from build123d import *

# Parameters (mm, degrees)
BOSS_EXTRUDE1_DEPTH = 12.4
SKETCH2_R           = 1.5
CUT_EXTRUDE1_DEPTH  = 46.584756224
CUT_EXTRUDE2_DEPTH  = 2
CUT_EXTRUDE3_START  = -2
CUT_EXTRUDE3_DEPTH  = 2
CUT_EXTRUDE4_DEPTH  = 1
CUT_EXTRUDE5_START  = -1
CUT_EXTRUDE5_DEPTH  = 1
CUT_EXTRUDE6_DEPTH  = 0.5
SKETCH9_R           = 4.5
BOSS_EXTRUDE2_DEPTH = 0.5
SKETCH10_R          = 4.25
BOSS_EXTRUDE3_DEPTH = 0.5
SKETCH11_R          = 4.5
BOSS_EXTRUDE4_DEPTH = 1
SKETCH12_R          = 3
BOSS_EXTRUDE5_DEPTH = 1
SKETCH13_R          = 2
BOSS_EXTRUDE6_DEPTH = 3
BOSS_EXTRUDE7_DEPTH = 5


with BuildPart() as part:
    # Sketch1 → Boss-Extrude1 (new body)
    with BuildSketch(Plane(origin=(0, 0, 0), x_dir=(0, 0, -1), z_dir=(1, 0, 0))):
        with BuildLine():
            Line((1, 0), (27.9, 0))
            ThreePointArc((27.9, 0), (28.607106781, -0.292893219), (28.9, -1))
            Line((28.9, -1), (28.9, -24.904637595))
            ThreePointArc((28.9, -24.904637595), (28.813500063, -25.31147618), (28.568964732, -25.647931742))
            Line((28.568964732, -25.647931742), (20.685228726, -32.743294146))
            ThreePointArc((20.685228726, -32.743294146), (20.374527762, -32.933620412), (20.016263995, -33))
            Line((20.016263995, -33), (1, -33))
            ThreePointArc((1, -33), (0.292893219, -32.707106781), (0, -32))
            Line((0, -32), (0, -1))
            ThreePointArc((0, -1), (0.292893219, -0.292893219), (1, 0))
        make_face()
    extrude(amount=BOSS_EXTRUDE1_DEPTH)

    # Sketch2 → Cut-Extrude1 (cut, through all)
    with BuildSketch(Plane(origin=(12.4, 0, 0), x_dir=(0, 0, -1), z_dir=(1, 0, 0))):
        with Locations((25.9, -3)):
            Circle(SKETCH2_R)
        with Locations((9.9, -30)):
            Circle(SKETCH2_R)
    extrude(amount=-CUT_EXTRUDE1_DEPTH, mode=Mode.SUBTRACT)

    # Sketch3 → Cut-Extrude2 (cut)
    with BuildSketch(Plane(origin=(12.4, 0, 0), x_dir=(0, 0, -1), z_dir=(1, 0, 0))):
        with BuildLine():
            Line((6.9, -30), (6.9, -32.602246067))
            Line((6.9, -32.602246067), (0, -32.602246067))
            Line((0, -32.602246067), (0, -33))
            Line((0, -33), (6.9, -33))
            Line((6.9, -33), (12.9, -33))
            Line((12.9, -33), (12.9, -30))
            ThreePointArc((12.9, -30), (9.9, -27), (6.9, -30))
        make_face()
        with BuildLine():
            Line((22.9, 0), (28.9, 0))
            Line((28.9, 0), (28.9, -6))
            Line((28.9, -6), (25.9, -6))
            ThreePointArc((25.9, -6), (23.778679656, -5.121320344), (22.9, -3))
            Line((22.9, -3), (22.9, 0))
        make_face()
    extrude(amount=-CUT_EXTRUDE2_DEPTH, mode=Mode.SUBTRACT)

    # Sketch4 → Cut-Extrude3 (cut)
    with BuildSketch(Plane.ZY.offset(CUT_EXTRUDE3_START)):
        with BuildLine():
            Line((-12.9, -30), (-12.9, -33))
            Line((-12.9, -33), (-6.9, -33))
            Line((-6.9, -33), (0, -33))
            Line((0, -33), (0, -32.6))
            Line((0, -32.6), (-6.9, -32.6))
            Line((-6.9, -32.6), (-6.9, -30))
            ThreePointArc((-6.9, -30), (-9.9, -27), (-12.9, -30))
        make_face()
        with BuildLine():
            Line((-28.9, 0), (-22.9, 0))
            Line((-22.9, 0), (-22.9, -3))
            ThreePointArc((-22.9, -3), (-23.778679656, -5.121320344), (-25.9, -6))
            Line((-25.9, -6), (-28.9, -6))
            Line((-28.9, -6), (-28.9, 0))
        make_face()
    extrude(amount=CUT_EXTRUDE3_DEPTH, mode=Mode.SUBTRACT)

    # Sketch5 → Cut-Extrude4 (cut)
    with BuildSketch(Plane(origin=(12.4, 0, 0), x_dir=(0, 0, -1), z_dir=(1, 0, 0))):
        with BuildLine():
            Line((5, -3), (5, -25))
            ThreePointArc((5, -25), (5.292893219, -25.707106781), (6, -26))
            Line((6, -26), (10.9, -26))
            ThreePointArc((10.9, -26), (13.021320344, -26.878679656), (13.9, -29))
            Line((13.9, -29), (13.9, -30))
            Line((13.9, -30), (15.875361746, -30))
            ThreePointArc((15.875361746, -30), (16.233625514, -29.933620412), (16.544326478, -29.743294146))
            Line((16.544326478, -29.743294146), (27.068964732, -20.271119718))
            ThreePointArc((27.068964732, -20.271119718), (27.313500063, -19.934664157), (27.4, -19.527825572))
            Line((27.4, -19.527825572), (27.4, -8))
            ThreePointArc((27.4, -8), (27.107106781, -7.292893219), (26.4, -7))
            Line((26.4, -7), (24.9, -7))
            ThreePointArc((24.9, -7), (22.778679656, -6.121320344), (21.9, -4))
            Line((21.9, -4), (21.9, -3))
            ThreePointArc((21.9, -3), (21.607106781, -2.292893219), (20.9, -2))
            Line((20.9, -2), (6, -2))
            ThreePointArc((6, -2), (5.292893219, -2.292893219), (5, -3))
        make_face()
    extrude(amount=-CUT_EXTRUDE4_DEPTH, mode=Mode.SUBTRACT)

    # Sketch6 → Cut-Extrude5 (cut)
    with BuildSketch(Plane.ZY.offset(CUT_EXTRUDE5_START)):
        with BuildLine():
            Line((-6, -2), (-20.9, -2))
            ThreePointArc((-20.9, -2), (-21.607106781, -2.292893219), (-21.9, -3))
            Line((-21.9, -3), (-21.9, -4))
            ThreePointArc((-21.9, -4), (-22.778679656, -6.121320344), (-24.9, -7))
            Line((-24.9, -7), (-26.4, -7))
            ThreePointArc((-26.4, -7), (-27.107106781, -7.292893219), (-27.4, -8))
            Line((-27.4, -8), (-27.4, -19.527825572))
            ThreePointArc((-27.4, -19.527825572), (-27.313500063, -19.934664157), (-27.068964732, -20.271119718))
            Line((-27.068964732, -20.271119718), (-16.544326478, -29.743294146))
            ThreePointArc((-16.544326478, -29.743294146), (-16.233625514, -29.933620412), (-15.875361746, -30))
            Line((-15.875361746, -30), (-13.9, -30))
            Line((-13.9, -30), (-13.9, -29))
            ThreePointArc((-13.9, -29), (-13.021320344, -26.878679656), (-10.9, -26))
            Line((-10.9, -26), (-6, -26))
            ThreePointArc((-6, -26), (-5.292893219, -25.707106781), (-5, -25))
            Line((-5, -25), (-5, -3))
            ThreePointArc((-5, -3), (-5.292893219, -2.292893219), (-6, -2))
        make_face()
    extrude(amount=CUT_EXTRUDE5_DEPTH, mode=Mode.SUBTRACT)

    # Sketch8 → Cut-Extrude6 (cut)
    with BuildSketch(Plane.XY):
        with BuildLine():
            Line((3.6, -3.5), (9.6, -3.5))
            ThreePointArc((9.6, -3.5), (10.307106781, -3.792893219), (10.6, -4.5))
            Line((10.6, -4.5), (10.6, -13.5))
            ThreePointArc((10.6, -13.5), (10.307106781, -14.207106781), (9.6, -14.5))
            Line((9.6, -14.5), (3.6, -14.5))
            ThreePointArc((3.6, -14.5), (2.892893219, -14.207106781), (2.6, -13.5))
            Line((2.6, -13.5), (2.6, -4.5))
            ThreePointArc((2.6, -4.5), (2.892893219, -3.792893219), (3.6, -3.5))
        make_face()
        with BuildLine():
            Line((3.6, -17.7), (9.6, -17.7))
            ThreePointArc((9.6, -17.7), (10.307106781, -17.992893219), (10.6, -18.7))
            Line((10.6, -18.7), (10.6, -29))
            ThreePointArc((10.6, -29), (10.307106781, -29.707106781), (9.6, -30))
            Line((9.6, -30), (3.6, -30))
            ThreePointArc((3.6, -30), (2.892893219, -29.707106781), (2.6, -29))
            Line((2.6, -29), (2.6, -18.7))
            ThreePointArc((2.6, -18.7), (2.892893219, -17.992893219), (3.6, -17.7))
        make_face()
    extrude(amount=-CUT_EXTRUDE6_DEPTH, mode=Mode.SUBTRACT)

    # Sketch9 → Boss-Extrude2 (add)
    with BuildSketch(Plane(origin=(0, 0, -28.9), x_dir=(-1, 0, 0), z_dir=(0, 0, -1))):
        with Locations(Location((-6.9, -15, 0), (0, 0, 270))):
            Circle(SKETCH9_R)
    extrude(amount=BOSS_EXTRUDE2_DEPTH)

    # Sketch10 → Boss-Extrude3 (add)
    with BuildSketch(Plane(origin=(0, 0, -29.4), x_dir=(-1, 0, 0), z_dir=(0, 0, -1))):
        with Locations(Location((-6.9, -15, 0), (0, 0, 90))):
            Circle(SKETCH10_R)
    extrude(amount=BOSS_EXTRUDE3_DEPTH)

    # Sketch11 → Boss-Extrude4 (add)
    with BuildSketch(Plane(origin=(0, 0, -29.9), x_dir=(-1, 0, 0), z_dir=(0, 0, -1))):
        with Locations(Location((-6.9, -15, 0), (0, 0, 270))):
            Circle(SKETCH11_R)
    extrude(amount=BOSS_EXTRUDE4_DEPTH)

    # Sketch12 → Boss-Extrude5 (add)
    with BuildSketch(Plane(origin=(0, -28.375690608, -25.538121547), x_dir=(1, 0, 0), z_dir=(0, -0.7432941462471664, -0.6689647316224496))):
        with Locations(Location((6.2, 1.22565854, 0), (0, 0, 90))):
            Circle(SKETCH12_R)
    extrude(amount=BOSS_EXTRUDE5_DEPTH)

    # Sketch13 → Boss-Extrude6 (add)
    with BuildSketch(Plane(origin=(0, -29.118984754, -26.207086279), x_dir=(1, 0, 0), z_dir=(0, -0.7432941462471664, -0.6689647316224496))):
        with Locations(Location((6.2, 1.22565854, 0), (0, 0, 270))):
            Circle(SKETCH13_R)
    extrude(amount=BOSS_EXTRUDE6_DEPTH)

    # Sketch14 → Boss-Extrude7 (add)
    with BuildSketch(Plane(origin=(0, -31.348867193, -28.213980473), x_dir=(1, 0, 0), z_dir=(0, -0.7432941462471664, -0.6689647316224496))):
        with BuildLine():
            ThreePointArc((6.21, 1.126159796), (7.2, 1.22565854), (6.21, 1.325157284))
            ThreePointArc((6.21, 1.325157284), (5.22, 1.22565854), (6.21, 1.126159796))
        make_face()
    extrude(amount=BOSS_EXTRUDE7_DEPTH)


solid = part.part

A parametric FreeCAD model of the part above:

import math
import FreeCAD as App
import Part
import Sketcher
from FreeCAD import Vector
Q = App.Units.Quantity

doc = App.newDocument("Part")
body = doc.addObject("PartDesign::Body", "Body")

# Sketch on YZ plane
sketch1 = body.newObject("Sketcher::SketchObject", "Sketch")
sketch1.AttachmentSupport = (doc.getObject("YZ_Plane"), [""])
sketch1.MapMode = "FlatFace"
sketch1.addGeometry([
    Part.LineSegment(Vector(0, -27.9, 0), Vector(0, -1, 0)),  # 0
    Part.ArcOfCircle(Part.Circle(Vector(-1, -1, 0), Vector(0, 0, 1), 1), math.radians(0), math.radians(90)),  # 1
    Part.LineSegment(Vector(-1, 0, 0), Vector(-32, 0, 0)),  # 2
    Part.ArcOfCircle(Part.Circle(Vector(-32, -1, 0), Vector(0, 0, 1), 1), math.radians(90), math.radians(180)),  # 3
    Part.LineSegment(Vector(-33, -1, 0), Vector(-33, -20, 0)),  # 4
    Part.ArcOfCircle(Part.Circle(Vector(-32, -20, 0), Vector(0, 0, 1), 1), math.radians(180), math.radians(222)),  # 5
    Part.LineSegment(Vector(-32.7, -20.7, 0), Vector(-25.6, -28.6, 0)),  # 6
    Part.ArcOfCircle(Part.Circle(Vector(-24.9, -27.9, 0), Vector(0, 0, 1), 1), math.radians(-138), math.radians(-90)),  # 7
    Part.LineSegment(Vector(-24.9, -28.9, 0), Vector(-1, -28.9, 0)),  # 8
    Part.ArcOfCircle(Part.Circle(Vector(-1, -27.9, 0), Vector(0, 0, 1), 1), math.radians(-90), math.radians(0)),  # 9
], False)
sketch1.addConstraint([
    Sketcher.Constraint("Tangent", 0, 2, 1, 1),
    Sketcher.Constraint("Tangent", 1, 2, 2, 1),
    Sketcher.Constraint("Tangent", 2, 2, 3, 1),
    Sketcher.Constraint("Tangent", 3, 2, 4, 1),
    Sketcher.Constraint("Tangent", 4, 2, 5, 1),
    Sketcher.Constraint("Tangent", 5, 2, 6, 1),
    Sketcher.Constraint("Tangent", 6, 2, 7, 1),
    Sketcher.Constraint("Tangent", 7, 2, 8, 1),
    Sketcher.Constraint("Tangent", 8, 2, 9, 1),
    Sketcher.Constraint("Tangent", 9, 2, 0, 1),
    Sketcher.Constraint("Vertical", 0),
    Sketcher.Constraint("Horizontal", 2),
    Sketcher.Constraint("Vertical", 4),
    Sketcher.Constraint("Horizontal", 8),
    Sketcher.Constraint("Equal", 1, 3),
    Sketcher.Constraint("Equal", 3, 5),
    Sketcher.Constraint("Equal", 5, 7),
    Sketcher.Constraint("Equal", 7, 9),
    Sketcher.Constraint("PointOnObject", 0, 2, -2),
    Sketcher.Constraint("PointOnObject", 1, 2, -1),
    Sketcher.Constraint("Radius", 1, Q("1 mm")),
    Sketcher.Constraint("DistanceX", 2, 2, 2, 1, Q("31 mm")),
    Sketcher.Constraint("DistanceY", 0, 1, 0, 2, Q("26.9 mm")),
    Sketcher.Constraint("DistanceY", 6, 2, 5, 3, Q("8.552701 mm")),
    Sketcher.Constraint("DistanceX", 8, 1, 8, 2, Q("23.904638 mm")),
])
pad1 = body.newObject("PartDesign::Pad", "Pad")
pad1.Profile = sketch1
pad1.Length = 12.4

# Sketch on YZ plane
sketch2 = body.newObject("Sketcher::SketchObject", "Sketch001")
sketch2.AttachmentSupport = (doc.getObject("YZ_Plane"), [""])
sketch2.MapMode = "FlatFace"
sketch2.AttachmentOffset = App.Placement(Vector(0, 0, 12.4), App.Rotation())
sketch2.addGeometry([
    Part.Circle(Vector(-3, -25.9, 0), Vector(0, 0, 1), 1.5),
    Part.Circle(Vector(-30, -9.9, 0), Vector(0, 0, 1), 1.5),
], False)
sketch2.addConstraint([
    Sketcher.Constraint("Equal", 0, 1),
    Sketcher.Constraint("Diameter", 0, Q("3 mm")),
    Sketcher.Constraint("DistanceX", 0, 3, -1, 1, Q("3 mm")),
    Sketcher.Constraint("DistanceX", 1, 3, -1, 1, Q("30 mm")),
    Sketcher.Constraint("DistanceY", 0, 3, 1, 3, Q("16 mm")),
    Sketcher.Constraint("DistanceY", 0, 3, -1, 1, Q("25.9 mm")),
])
pocket1 = body.newObject("PartDesign::Pocket", "Pocket")
pocket1.Profile = sketch2
pocket1.Type = "ThroughAll"

# Sketch on YZ plane
sketch3 = body.newObject("Sketcher::SketchObject", "Sketch002")
sketch3.AttachmentSupport = (doc.getObject("YZ_Plane"), [""])
sketch3.MapMode = "FlatFace"
sketch3.AttachmentOffset = App.Placement(Vector(0, 0, 12.4), App.Rotation())
sketch3.addGeometry([
    Part.LineSegment(Vector(-30, -6.9, 0), Vector(-32.6, -6.9, 0)),  # 0
    Part.LineSegment(Vector(-32.6, -6.9, 0), Vector(-32.6, 0, 0)),  # 1
    Part.LineSegment(Vector(-32.6, 0, 0), Vector(-33, 0, 0)),  # 2
    Part.LineSegment(Vector(-33, 0, 0), Vector(-33, -12.9, 0)),  # 3
    Part.LineSegment(Vector(-33, -12.9, 0), Vector(-30, -12.9, 0)),  # 4
    Part.ArcOfCircle(Part.Circle(Vector(-30, -9.9, 0), Vector(0, 0, 1), 3), math.radians(-90), math.radians(90)),  # 5
    Part.LineSegment(Vector(0, -28.9, 0), Vector(0, -22.9, 0)),  # 6
    Part.LineSegment(Vector(0, -22.9, 0), Vector(-3, -22.9, 0)),  # 7
    Part.ArcOfCircle(Part.Circle(Vector(-3, -25.9, 0), Vector(0, 0, 1), 3), math.radians(90), math.radians(180)),  # 8
    Part.LineSegment(Vector(-6, -25.9, 0), Vector(-6, -28.9, 0)),  # 9
    Part.LineSegment(Vector(-6, -28.9, 0), Vector(0, -28.9, 0)),  # 10
], False)
sketch3.addConstraint([
    Sketcher.Constraint("Coincident", 0, 2, 1, 1),
    Sketcher.Constraint("Coincident", 1, 2, 2, 1),
    Sketcher.Constraint("Coincident", 2, 2, 3, 1),
    Sketcher.Constraint("Coincident", 3, 2, 4, 1),
    Sketcher.Constraint("Tangent", 4, 2, 5, 1),
    Sketcher.Constraint("Tangent", 5, 2, 0, 1),
    Sketcher.Constraint("Coincident", 6, 2, 7, 1),
    Sketcher.Constraint("Tangent", 7, 2, 8, 1),
    Sketcher.Constraint("Tangent", 8, 2, 9, 1),
    Sketcher.Constraint("Coincident", 9, 2, 10, 1),
    Sketcher.Constraint("Coincident", 10, 2, 6, 1),
    Sketcher.Constraint("Horizontal", 0),
    Sketcher.Constraint("Vertical", 1),
    Sketcher.Constraint("Horizontal", 2),
    Sketcher.Constraint("Vertical", 3),
    Sketcher.Constraint("Horizontal", 4),
    Sketcher.Constraint("Vertical", 6),
    Sketcher.Constraint("Horizontal", 7),
    Sketcher.Constraint("Vertical", 9),
    Sketcher.Constraint("Horizontal", 10),
    Sketcher.Constraint("Equal", 5, 8),
    Sketcher.Constraint("PointOnObject", 1, 2, -1),
    Sketcher.Constraint("PointOnObject", 6, 2, -2),
    Sketcher.Constraint("Equal", 4, 7),
    Sketcher.Constraint("Equal", 10, 6),
    Sketcher.Constraint("Radius", 5, Q("3 mm")),
    Sketcher.Constraint("DistanceX", 4, 1, 4, 2, Q("3 mm")),
    Sketcher.Constraint("DistanceY", 1, 1, 1, 2, Q("6.9 mm")),
    Sketcher.Constraint("DistanceX", 5, 3, -1, 1, Q("30 mm")),
    Sketcher.Constraint("DistanceY", 8, 3, 5, 3, Q("16 mm")),
    Sketcher.Constraint("DistanceX", 0, 2, 0, 1, Q("2.602246 mm")),
])
pocket2 = body.newObject("PartDesign::Pocket", "Pocket001")
pocket2.Profile = sketch3
pocket2.Length = 2

# Sketch on YZ plane
sketch4 = body.newObject("Sketcher::SketchObject", "Sketch003")
sketch4.AttachmentSupport = (doc.getObject("YZ_Plane"), [""])
sketch4.MapMode = "FlatFace"
sketch4.AttachmentOffset = App.Placement(Vector(0, 0, 2), App.Rotation())
sketch4.addGeometry([
    Part.LineSegment(Vector(-30, -12.9, 0), Vector(-33, -12.9, 0)),  # 0
    Part.LineSegment(Vector(-33, -12.9, 0), Vector(-33, 0, 0)),  # 1
    Part.LineSegment(Vector(-33, 0, 0), Vector(-32.6, 0, 0)),  # 2
    Part.LineSegment(Vector(-32.6, 0, 0), Vector(-32.6, -6.9, 0)),  # 3
    Part.LineSegment(Vector(-32.6, -6.9, 0), Vector(-30, -6.9, 0)),  # 4
    Part.ArcOfCircle(Part.Circle(Vector(-30, -9.9, 0), Vector(0, 0, 1), 3), math.radians(-90), math.radians(90)),  # 5
    Part.LineSegment(Vector(0, -22.9, 0), Vector(0, -28.9, 0)),  # 6
    Part.LineSegment(Vector(0, -28.9, 0), Vector(-6, -28.9, 0)),  # 7
    Part.LineSegment(Vector(-6, -28.9, 0), Vector(-6, -25.9, 0)),  # 8
    Part.ArcOfCircle(Part.Circle(Vector(-3, -25.9, 0), Vector(0, 0, 1), 3), math.radians(90), math.radians(180)),  # 9
    Part.LineSegment(Vector(-3, -22.9, 0), Vector(0, -22.9, 0)),  # 10
], False)
sketch4.addConstraint([
    Sketcher.Constraint("Coincident", 0, 2, 1, 1),
    Sketcher.Constraint("Coincident", 1, 2, 2, 1),
    Sketcher.Constraint("Coincident", 2, 2, 3, 1),
    Sketcher.Constraint("Coincident", 3, 2, 4, 1),
    Sketcher.Constraint("Tangent", 4, 2, 5, 2),
    Sketcher.Constraint("Tangent", 5, 1, 0, 1),
    Sketcher.Constraint("Coincident", 6, 2, 7, 1),
    Sketcher.Constraint("Coincident", 7, 2, 8, 1),
    Sketcher.Constraint("Tangent", 8, 2, 9, 2),
    Sketcher.Constraint("Tangent", 9, 1, 10, 1),
    Sketcher.Constraint("Coincident", 10, 2, 6, 1),
    Sketcher.Constraint("Horizontal", 0),
    Sketcher.Constraint("Vertical", 1),
    Sketcher.Constraint("Horizontal", 2),
    Sketcher.Constraint("Vertical", 3),
    Sketcher.Constraint("Horizontal", 4),
    Sketcher.Constraint("Vertical", 6),
    Sketcher.Constraint("Horizontal", 7),
    Sketcher.Constraint("Vertical", 8),
    Sketcher.Constraint("Horizontal", 10),
    Sketcher.Constraint("Equal", 5, 9),
    Sketcher.Constraint("PointOnObject", 1, 2, -1),
    Sketcher.Constraint("PointOnObject", 6, 2, -2),
    Sketcher.Constraint("Equal", 0, 10),
    Sketcher.Constraint("Equal", 7, 6),
    Sketcher.Constraint("Radius", 5, Q("3 mm")),
    Sketcher.Constraint("DistanceX", 0, 2, 0, 1, Q("3 mm")),
    Sketcher.Constraint("DistanceX", 2, 1, 2, 2, Q("0.4 mm")),
    Sketcher.Constraint("DistanceY", 1, 1, 1, 2, Q("12.9 mm")),
    Sketcher.Constraint("DistanceX", 5, 3, -1, 1, Q("30 mm")),
    Sketcher.Constraint("DistanceY", 9, 3, 5, 3, Q("16 mm")),
])
pocket3 = body.newObject("PartDesign::Pocket", "Pocket002")
pocket3.Profile = sketch4
pocket3.Length = 2

# Sketch on YZ plane
sketch5 = body.newObject("Sketcher::SketchObject", "Sketch004")
sketch5.AttachmentSupport = (doc.getObject("YZ_Plane"), [""])
sketch5.MapMode = "FlatFace"
sketch5.AttachmentOffset = App.Placement(Vector(0, 0, 12.4), App.Rotation())
sketch5.addGeometry([
    Part.LineSegment(Vector(-3, -5, 0), Vector(-25, -5, 0)),  # 0
    Part.ArcOfCircle(Part.Circle(Vector(-25, -6, 0), Vector(0, 0, 1), 1), math.radians(90), math.radians(180)),  # 1
    Part.LineSegment(Vector(-26, -6, 0), Vector(-26, -10.9, 0)),  # 2
    Part.ArcOfCircle(Part.Circle(Vector(-29, -10.9, 0), Vector(0, 0, 1), 3), math.radians(-90), math.radians(0)),  # 3
    Part.LineSegment(Vector(-29, -13.9, 0), Vector(-30, -13.9, 0)),  # 4
    Part.LineSegment(Vector(-30, -13.9, 0), Vector(-30, -15.9, 0)),  # 5
    Part.ArcOfCircle(Part.Circle(Vector(-29, -15.9, 0), Vector(0, 0, 1), 1), math.radians(180), math.radians(222)),  # 6
    Part.LineSegment(Vector(-29.7, -16.5, 0), Vector(-20.3, -27.1, 0)),  # 7
    Part.ArcOfCircle(Part.Circle(Vector(-19.5, -26.4, 0), Vector(0, 0, 1), 1), math.radians(-138), math.radians(-90)),  # 8
    Part.LineSegment(Vector(-19.5, -27.4, 0), Vector(-8, -27.4, 0)),  # 9
    Part.ArcOfCircle(Part.Circle(Vector(-8, -26.4, 0), Vector(0, 0, 1), 1), math.radians(-90), math.radians(0)),  # 10
    Part.LineSegment(Vector(-7, -26.4, 0), Vector(-7, -24.9, 0)),  # 11
    Part.ArcOfCircle(Part.Circle(Vector(-4, -24.9, 0), Vector(0, 0, 1), 3), math.radians(90), math.radians(180)),  # 12
    Part.LineSegment(Vector(-4, -21.9, 0), Vector(-3, -21.9, 0)),  # 13
    Part.ArcOfCircle(Part.Circle(Vector(-3, -20.9, 0), Vector(0, 0, 1), 1), math.radians(-90), math.radians(0)),  # 14
    Part.LineSegment(Vector(-2, -20.9, 0), Vector(-2, -6, 0)),  # 15
    Part.ArcOfCircle(Part.Circle(Vector(-3, -6, 0), Vector(0, 0, 1), 1), math.radians(0), math.radians(90)),  # 16
], False)
sketch5.addConstraint([
    Sketcher.Constraint("Tangent", 0, 2, 1, 1),
    Sketcher.Constraint("Tangent", 1, 2, 2, 1),
    Sketcher.Constraint("Tangent", 2, 2, 3, 2),
    Sketcher.Constraint("Tangent", 3, 1, 4, 1),
    Sketcher.Constraint("Coincident", 4, 2, 5, 1),
    Sketcher.Constraint("Tangent", 5, 2, 6, 1),
    Sketcher.Constraint("Tangent", 6, 2, 7, 1),
    Sketcher.Constraint("Tangent", 7, 2, 8, 1),
    Sketcher.Constraint("Tangent", 8, 2, 9, 1),
    Sketcher.Constraint("Tangent", 9, 2, 10, 1),
    Sketcher.Constraint("Tangent", 10, 2, 11, 1),
    Sketcher.Constraint("Tangent", 11, 2, 12, 2),
    Sketcher.Constraint("Tangent", 12, 1, 13, 1),
    Sketcher.Constraint("Tangent", 13, 2, 14, 1),
    Sketcher.Constraint("Tangent", 14, 2, 15, 1),
    Sketcher.Constraint("Tangent", 15, 2, 16, 1),
    Sketcher.Constraint("Tangent", 16, 2, 0, 1),
    Sketcher.Constraint("Horizontal", 0),
    Sketcher.Constraint("Vertical", 2),
    Sketcher.Constraint("Horizontal", 4),
    Sketcher.Constraint("Vertical", 5),
    Sketcher.Constraint("Horizontal", 9),
    Sketcher.Constraint("Vertical", 11),
    Sketcher.Constraint("Horizontal", 13),
    Sketcher.Constraint("Vertical", 15),
    Sketcher.Constraint("Equal", 1, 6),
    Sketcher.Constraint("Equal", 6, 8),
    Sketcher.Constraint("Equal", 8, 10),
    Sketcher.Constraint("Equal", 3, 12),
    Sketcher.Constraint("Equal", 10, 14),
    Sketcher.Constraint("Equal", 14, 16),
    Sketcher.Constraint("Vertical", 3, 3, 6, 3),
    Sketcher.Constraint("Equal", 4, 13),
    Sketcher.Constraint("Radius", 1, Q("1 mm")),
    Sketcher.Constraint("Radius", 3, Q("3 mm")),
    Sketcher.Constraint("DistanceX", 0, 2, 0, 1, Q("22 mm")),
    Sketcher.Constraint("DistanceY", 2, 2, 2, 1, Q("4.9 mm")),
    Sketcher.Constraint("DistanceY", 11, 1, 11, 2, Q("1.5 mm")),
    Sketcher.Constraint("DistanceY", 15, 1, 15, 2, Q("14.9 mm")),
    Sketcher.Constraint("DistanceX", 1, 3, -1, 1, Q("25 mm")),
    Sketcher.Constraint("DistanceY", 1, 3, -1, 1, Q("6 mm")),
    Sketcher.Constraint("DistanceY", 5, 2, 5, 1, Q("1.975362 mm")),
    Sketcher.Constraint("DistanceX", 9, 1, 9, 2, Q("11.527826 mm")),
])
pocket4 = body.newObject("PartDesign::Pocket", "Pocket003")
pocket4.Profile = sketch5
pocket4.Length = 1

# Sketch on YZ plane
sketch6 = body.newObject("Sketcher::SketchObject", "Sketch005")
sketch6.AttachmentSupport = (doc.getObject("YZ_Plane"), [""])
sketch6.MapMode = "FlatFace"
sketch6.AttachmentOffset = App.Placement(Vector(0, 0, 1), App.Rotation())
sketch6.addGeometry([
    Part.LineSegment(Vector(-2, -6, 0), Vector(-2, -20.9, 0)),  # 0
    Part.ArcOfCircle(Part.Circle(Vector(-3, -20.9, 0), Vector(0, 0, 1), 1), math.radians(-90), math.radians(0)),  # 1
    Part.LineSegment(Vector(-3, -21.9, 0), Vector(-4, -21.9, 0)),  # 2
    Part.ArcOfCircle(Part.Circle(Vector(-4, -24.9, 0), Vector(0, 0, 1), 3), math.radians(90), math.radians(180)),  # 3
    Part.LineSegment(Vector(-7, -24.9, 0), Vector(-7, -26.4, 0)),  # 4
    Part.ArcOfCircle(Part.Circle(Vector(-8, -26.4, 0), Vector(0, 0, 1), 1), math.radians(-90), math.radians(0)),  # 5
    Part.LineSegment(Vector(-8, -27.4, 0), Vector(-19.5, -27.4, 0)),  # 6
    Part.ArcOfCircle(Part.Circle(Vector(-19.5, -26.4, 0), Vector(0, 0, 1), 1), math.radians(-138), math.radians(-90)),  # 7
    Part.LineSegment(Vector(-20.3, -27.1, 0), Vector(-29.7, -16.5, 0)),  # 8
    Part.ArcOfCircle(Part.Circle(Vector(-29, -15.9, 0), Vector(0, 0, 1), 1), math.radians(180), math.radians(222)),  # 9
    Part.LineSegment(Vector(-30, -15.9, 0), Vector(-30, -13.9, 0)),  # 10
    Part.LineSegment(Vector(-30, -13.9, 0), Vector(-29, -13.9, 0)),  # 11
    Part.ArcOfCircle(Part.Circle(Vector(-29, -10.9, 0), Vector(0, 0, 1), 3), math.radians(-90), math.radians(0)),  # 12
    Part.LineSegment(Vector(-26, -10.9, 0), Vector(-26, -6, 0)),  # 13
    Part.ArcOfCircle(Part.Circle(Vector(-25, -6, 0), Vector(0, 0, 1), 1), math.radians(90), math.radians(180)),  # 14
    Part.LineSegment(Vector(-25, -5, 0), Vector(-3, -5, 0)),  # 15
    Part.ArcOfCircle(Part.Circle(Vector(-3, -6, 0), Vector(0, 0, 1), 1), math.radians(0), math.radians(90)),  # 16
], False)
sketch6.addConstraint([
    Sketcher.Constraint("Tangent", 0, 2, 1, 2),
    Sketcher.Constraint("Tangent", 1, 1, 2, 1),
    Sketcher.Constraint("Tangent", 2, 2, 3, 1),
    Sketcher.Constraint("Tangent", 3, 2, 4, 1),
    Sketcher.Constraint("Tangent", 4, 2, 5, 2),
    Sketcher.Constraint("Tangent", 5, 1, 6, 1),
    Sketcher.Constraint("Tangent", 6, 2, 7, 2),
    Sketcher.Constraint("Tangent", 7, 1, 8, 1),
    Sketcher.Constraint("Tangent", 8, 2, 9, 2),
    Sketcher.Constraint("Tangent", 9, 1, 10, 1),
    Sketcher.Constraint("Coincident", 10, 2, 11, 1),
    Sketcher.Constraint("Tangent", 11, 2, 12, 1),
    Sketcher.Constraint("Tangent", 12, 2, 13, 1),
    Sketcher.Constraint("Tangent", 13, 2, 14, 2),
    Sketcher.Constraint("Tangent", 14, 1, 15, 1),
    Sketcher.Constraint("Tangent", 15, 2, 16, 2),
    Sketcher.Constraint("Tangent", 16, 1, 0, 1),
    Sketcher.Constraint("Vertical", 0),
    Sketcher.Constraint("Horizontal", 2),
    Sketcher.Constraint("Vertical", 4),
    Sketcher.Constraint("Horizontal", 6),
    Sketcher.Constraint("Vertical", 10),
    Sketcher.Constraint("Horizontal", 11),
    Sketcher.Constraint("Vertical", 13),
    Sketcher.Constraint("Horizontal", 15),
    Sketcher.Constraint("Equal", 1, 5),
    Sketcher.Constraint("Equal", 5, 7),
    Sketcher.Constraint("Equal", 7, 9),
    Sketcher.Constraint("Equal", 3, 12),
    Sketcher.Constraint("Equal", 9, 14),
    Sketcher.Constraint("Equal", 14, 16),
    Sketcher.Constraint("Vertical", 9, 3, 12, 3),
    Sketcher.Constraint("Equal", 2, 11),
    Sketcher.Constraint("Radius", 1, Q("1 mm")),
    Sketcher.Constraint("Radius", 3, Q("3 mm")),
    Sketcher.Constraint("DistanceX", 15, 1, 15, 2, Q("22 mm")),
    Sketcher.Constraint("DistanceY", 0, 2, 0, 1, Q("14.9 mm")),
    Sketcher.Constraint("DistanceY", 4, 2, 4, 1, Q("1.5 mm")),
    Sketcher.Constraint("DistanceY", 13, 1, 13, 2, Q("4.9 mm")),
    Sketcher.Constraint("DistanceX", 1, 3, -1, 1, Q("3 mm")),
    Sketcher.Constraint("DistanceY", 14, 3, -1, 1, Q("6 mm")),
    Sketcher.Constraint("DistanceY", 10, 1, 10, 2, Q("1.975362 mm")),
    Sketcher.Constraint("DistanceX", 6, 2, 6, 1, Q("11.527826 mm")),
])
pocket5 = body.newObject("PartDesign::Pocket", "Pocket004")
pocket5.Profile = sketch6
pocket5.Length = 1

# Sketch on XY plane
sketch7 = body.newObject("Sketcher::SketchObject", "Sketch006")
sketch7.AttachmentSupport = (doc.getObject("XY_Plane"), [""])
sketch7.MapMode = "FlatFace"
sketch7.addGeometry([
    Part.LineSegment(Vector(9.6, -3.5, 0), Vector(3.6, -3.5, 0)),  # 0
    Part.ArcOfCircle(Part.Circle(Vector(3.6, -4.5, 0), Vector(0, 0, 1), 1), math.radians(90), math.radians(180)),  # 1
    Part.LineSegment(Vector(2.6, -4.5, 0), Vector(2.6, -13.5, 0)),  # 2
    Part.ArcOfCircle(Part.Circle(Vector(3.6, -13.5, 0), Vector(0, 0, 1), 1), math.radians(-180), math.radians(-90)),  # 3
    Part.LineSegment(Vector(3.6, -14.5, 0), Vector(9.6, -14.5, 0)),  # 4
    Part.ArcOfCircle(Part.Circle(Vector(9.6, -13.5, 0), Vector(0, 0, 1), 1), math.radians(-90), math.radians(0)),  # 5
    Part.LineSegment(Vector(10.6, -13.5, 0), Vector(10.6, -4.5, 0)),  # 6
    Part.ArcOfCircle(Part.Circle(Vector(9.6, -4.5, 0), Vector(0, 0, 1), 1), math.radians(0), math.radians(90)),  # 7
    Part.LineSegment(Vector(9.6, -17.7, 0), Vector(3.6, -17.7, 0)),  # 8
    Part.ArcOfCircle(Part.Circle(Vector(3.6, -18.7, 0), Vector(0, 0, 1), 1), math.radians(90), math.radians(180)),  # 9
    Part.LineSegment(Vector(2.6, -18.7, 0), Vector(2.6, -29, 0)),  # 10
    Part.ArcOfCircle(Part.Circle(Vector(3.6, -29, 0), Vector(0, 0, 1), 1), math.radians(-180), math.radians(-90)),  # 11
    Part.LineSegment(Vector(3.6, -30, 0), Vector(9.6, -30, 0)),  # 12
    Part.ArcOfCircle(Part.Circle(Vector(9.6, -29, 0), Vector(0, 0, 1), 1), math.radians(-90), math.radians(0)),  # 13
    Part.LineSegment(Vector(10.6, -29, 0), Vector(10.6, -18.7, 0)),  # 14
    Part.ArcOfCircle(Part.Circle(Vector(9.6, -18.7, 0), Vector(0, 0, 1), 1), math.radians(0), math.radians(90)),  # 15
], False)
sketch7.addConstraint([
    Sketcher.Constraint("Tangent", 0, 2, 1, 1),
    Sketcher.Constraint("Tangent", 1, 2, 2, 1),
    Sketcher.Constraint("Tangent", 2, 2, 3, 1),
    Sketcher.Constraint("Tangent", 3, 2, 4, 1),
    Sketcher.Constraint("Tangent", 4, 2, 5, 1),
    Sketcher.Constraint("Tangent", 5, 2, 6, 1),
    Sketcher.Constraint("Tangent", 6, 2, 7, 1),
    Sketcher.Constraint("Tangent", 7, 2, 0, 1),
    Sketcher.Constraint("Tangent", 8, 2, 9, 1),
    Sketcher.Constraint("Tangent", 9, 2, 10, 1),
    Sketcher.Constraint("Tangent", 10, 2, 11, 1),
    Sketcher.Constraint("Tangent", 11, 2, 12, 1),
    Sketcher.Constraint("Tangent", 12, 2, 13, 1),
    Sketcher.Constraint("Tangent", 13, 2, 14, 1),
    Sketcher.Constraint("Tangent", 14, 2, 15, 1),
    Sketcher.Constraint("Tangent", 15, 2, 8, 1),
    Sketcher.Constraint("Horizontal", 0),
    Sketcher.Constraint("Vertical", 2),
    Sketcher.Constraint("Horizontal", 4),
    Sketcher.Constraint("Vertical", 6),
    Sketcher.Constraint("Horizontal", 8),
    Sketcher.Constraint("Vertical", 10),
    Sketcher.Constraint("Horizontal", 12),
    Sketcher.Constraint("Vertical", 14),
    Sketcher.Constraint("Equal", 1, 3),
    Sketcher.Constraint("Equal", 3, 5),
    Sketcher.Constraint("Equal", 5, 7),
    Sketcher.Constraint("Equal", 7, 9),
    Sketcher.Constraint("Equal", 9, 11),
    Sketcher.Constraint("Equal", 11, 13),
    Sketcher.Constraint("Equal", 13, 15),
    Sketcher.Constraint("Vertical", 3, 3, 9, 3),
    Sketcher.Constraint("Vertical", 7, 3, 13, 3),
    Sketcher.Constraint("Radius", 1, Q("1 mm")),
    Sketcher.Constraint("DistanceX", 0, 2, 0, 1, Q("6 mm")),
    Sketcher.Constraint("DistanceY", 2, 2, 2, 1, Q("9 mm")),
    Sketcher.Constraint("DistanceY", 10, 2, 10, 1, Q("10.3 mm")),
    Sketcher.Constraint("DistanceY", 11, 3, -1, 1, Q("29 mm")),
    Sketcher.Constraint("DistanceX", -1, 1, 1, 3, Q("3.6 mm")),
    Sketcher.Constraint("DistanceY", 1, 3, -1, 1, Q("4.5 mm")),
])
pocket6 = body.newObject("PartDesign::Pocket", "Pocket005")
pocket6.Profile = sketch7
pocket6.Length = 0.5

# Sketch on XY plane
sketch8 = body.newObject("Sketcher::SketchObject", "Sketch007")
sketch8.AttachmentSupport = (doc.getObject("XY_Plane"), [""])
sketch8.MapMode = "FlatFace"
sketch8.AttachmentOffset = App.Placement(Vector(0, 0, -28.9), App.Rotation())
sketch8.addGeometry(Part.Circle(Vector(6.9, -15, 0), Vector(0, 0, 1), 4.5), False)
sketch8.addConstraint([
    Sketcher.Constraint("Diameter", 0, Q("9 mm")),
    Sketcher.Constraint("DistanceY", 0, 3, -1, 1, Q("15 mm")),
    Sketcher.Constraint("DistanceX", -1, 1, 0, 3, Q("6.9 mm")),
])
pad2 = body.newObject("PartDesign::Pad", "Pad001")
pad2.Profile = sketch8
pad2.Length = 0.5
pad2.Reversed = True

# Sketch on XY plane
sketch9 = body.newObject("Sketcher::SketchObject", "Sketch008")
sketch9.AttachmentSupport = (doc.getObject("XY_Plane"), [""])
sketch9.MapMode = "FlatFace"
sketch9.AttachmentOffset = App.Placement(Vector(0, 0, -29.4), App.Rotation())
sketch9.addGeometry(Part.Circle(Vector(6.9, -15, 0), Vector(0, 0, 1), 4.2), False)
sketch9.addConstraint([
    Sketcher.Constraint("Diameter", 0, Q("8.5 mm")),
    Sketcher.Constraint("DistanceY", 0, 3, -1, 1, Q("15 mm")),
    Sketcher.Constraint("DistanceX", -1, 1, 0, 3, Q("6.9 mm")),
])
pad3 = body.newObject("PartDesign::Pad", "Pad002")
pad3.Profile = sketch9
pad3.Length = 0.5
pad3.Reversed = True

# Sketch on XY plane
sketch10 = body.newObject("Sketcher::SketchObject", "Sketch009")
sketch10.AttachmentSupport = (doc.getObject("XY_Plane"), [""])
sketch10.MapMode = "FlatFace"
sketch10.AttachmentOffset = App.Placement(Vector(0, 0, -29.9), App.Rotation())
sketch10.addGeometry(Part.Circle(Vector(6.9, -15, 0), Vector(0, 0, 1), 4.5), False)
sketch10.addConstraint([
    Sketcher.Constraint("Diameter", 0, Q("9 mm")),
    Sketcher.Constraint("DistanceY", 0, 3, -1, 1, Q("15 mm")),
    Sketcher.Constraint("DistanceX", -1, 1, 0, 3, Q("6.9 mm")),
])
pad4 = body.newObject("PartDesign::Pad", "Pad003")
pad4.Profile = sketch10
pad4.Length = 1
pad4.Reversed = True

# Sketch on an angled plane
sketch11 = body.newObject("Sketcher::SketchObject", "Sketch010")
sketch11.Placement = App.Placement(Vector(0, -28.375691, -25.538122), App.Rotation(Vector(1, 0, 0), Vector(0, -0.668964732, 0.743294146), Vector(0, -0.743294146, -0.668964732), "ZXY"))
sketch11.addGeometry(Part.Circle(Vector(6.2, 1.2, 0), Vector(0, 0, 1), 3), False)
sketch11.addConstraint([
    Sketcher.Constraint("Diameter", 0, Q("6 mm")),
    Sketcher.Constraint("DistanceX", -1, 1, 0, 3, Q("6.2 mm")),
    Sketcher.Constraint("DistanceY", -1, 1, 0, 3, Q("1.225659 mm")),
])
pad5 = body.newObject("PartDesign::Pad", "Pad004")
pad5.Profile = sketch11
pad5.Length = 1

# Sketch on an angled plane
sketch12 = body.newObject("Sketcher::SketchObject", "Sketch011")
sketch12.Placement = App.Placement(Vector(0, -29.118985, -26.207086), App.Rotation(Vector(1, 0, 0), Vector(0, -0.668964732, 0.743294146), Vector(0, -0.743294146, -0.668964732), "ZXY"))
sketch12.addGeometry(Part.Circle(Vector(6.2, 1.2, 0), Vector(0, 0, 1), 2), False)
sketch12.addConstraint([
    Sketcher.Constraint("Diameter", 0, Q("4 mm")),
    Sketcher.Constraint("DistanceX", -1, 1, 0, 3, Q("6.2 mm")),
    Sketcher.Constraint("DistanceY", -1, 1, 0, 3, Q("1.225659 mm")),
])
pad6 = body.newObject("PartDesign::Pad", "Pad005")
pad6.Profile = sketch12
pad6.Length = 3

# Sketch on an angled plane
sketch13 = body.newObject("Sketcher::SketchObject", "Sketch012")
sketch13.Placement = App.Placement(Vector(0, -31.348867, -28.21398), App.Rotation(Vector(1, 0, 0), Vector(0, -0.668964732, 0.743294146), Vector(0, -0.743294146, -0.668964732), "ZXY"))
sketch13.addGeometry([
    Part.ArcOfCircle(Part.Circle(Vector(6.7, 1.23, 0), Vector(0, 0, 1), 0.5), math.radians(-169), math.radians(169)),
    Part.ArcOfCircle(Part.Circle(Vector(5.72, 1.23, 0), Vector(0, 0, 1), 0.5), math.radians(11), math.radians(349)),
], False)
sketch13.addConstraint([
    Sketcher.Constraint("Coincident", 0, 1, 1, 2),
    Sketcher.Constraint("Coincident", 1, 1, 0, 2),
    Sketcher.Constraint("Equal", 0, 1),
    Sketcher.Constraint("Horizontal", 0, 3, 1, 3),
    Sketcher.Constraint("Radius", 0, Q("0.5 mm")),
    Sketcher.Constraint("DistanceX", -1, 1, 0, 3, Q("6.7 mm")),
    Sketcher.Constraint("DistanceX", -1, 1, 1, 3, Q("5.72 mm")),
    Sketcher.Constraint("DistanceY", -1, 1, 0, 3, Q("1.225659 mm")),
])
pad7 = body.newObject("PartDesign::Pad", "Pad006")
pad7.Profile = sketch13
pad7.Length = 5

doc.recompute()
